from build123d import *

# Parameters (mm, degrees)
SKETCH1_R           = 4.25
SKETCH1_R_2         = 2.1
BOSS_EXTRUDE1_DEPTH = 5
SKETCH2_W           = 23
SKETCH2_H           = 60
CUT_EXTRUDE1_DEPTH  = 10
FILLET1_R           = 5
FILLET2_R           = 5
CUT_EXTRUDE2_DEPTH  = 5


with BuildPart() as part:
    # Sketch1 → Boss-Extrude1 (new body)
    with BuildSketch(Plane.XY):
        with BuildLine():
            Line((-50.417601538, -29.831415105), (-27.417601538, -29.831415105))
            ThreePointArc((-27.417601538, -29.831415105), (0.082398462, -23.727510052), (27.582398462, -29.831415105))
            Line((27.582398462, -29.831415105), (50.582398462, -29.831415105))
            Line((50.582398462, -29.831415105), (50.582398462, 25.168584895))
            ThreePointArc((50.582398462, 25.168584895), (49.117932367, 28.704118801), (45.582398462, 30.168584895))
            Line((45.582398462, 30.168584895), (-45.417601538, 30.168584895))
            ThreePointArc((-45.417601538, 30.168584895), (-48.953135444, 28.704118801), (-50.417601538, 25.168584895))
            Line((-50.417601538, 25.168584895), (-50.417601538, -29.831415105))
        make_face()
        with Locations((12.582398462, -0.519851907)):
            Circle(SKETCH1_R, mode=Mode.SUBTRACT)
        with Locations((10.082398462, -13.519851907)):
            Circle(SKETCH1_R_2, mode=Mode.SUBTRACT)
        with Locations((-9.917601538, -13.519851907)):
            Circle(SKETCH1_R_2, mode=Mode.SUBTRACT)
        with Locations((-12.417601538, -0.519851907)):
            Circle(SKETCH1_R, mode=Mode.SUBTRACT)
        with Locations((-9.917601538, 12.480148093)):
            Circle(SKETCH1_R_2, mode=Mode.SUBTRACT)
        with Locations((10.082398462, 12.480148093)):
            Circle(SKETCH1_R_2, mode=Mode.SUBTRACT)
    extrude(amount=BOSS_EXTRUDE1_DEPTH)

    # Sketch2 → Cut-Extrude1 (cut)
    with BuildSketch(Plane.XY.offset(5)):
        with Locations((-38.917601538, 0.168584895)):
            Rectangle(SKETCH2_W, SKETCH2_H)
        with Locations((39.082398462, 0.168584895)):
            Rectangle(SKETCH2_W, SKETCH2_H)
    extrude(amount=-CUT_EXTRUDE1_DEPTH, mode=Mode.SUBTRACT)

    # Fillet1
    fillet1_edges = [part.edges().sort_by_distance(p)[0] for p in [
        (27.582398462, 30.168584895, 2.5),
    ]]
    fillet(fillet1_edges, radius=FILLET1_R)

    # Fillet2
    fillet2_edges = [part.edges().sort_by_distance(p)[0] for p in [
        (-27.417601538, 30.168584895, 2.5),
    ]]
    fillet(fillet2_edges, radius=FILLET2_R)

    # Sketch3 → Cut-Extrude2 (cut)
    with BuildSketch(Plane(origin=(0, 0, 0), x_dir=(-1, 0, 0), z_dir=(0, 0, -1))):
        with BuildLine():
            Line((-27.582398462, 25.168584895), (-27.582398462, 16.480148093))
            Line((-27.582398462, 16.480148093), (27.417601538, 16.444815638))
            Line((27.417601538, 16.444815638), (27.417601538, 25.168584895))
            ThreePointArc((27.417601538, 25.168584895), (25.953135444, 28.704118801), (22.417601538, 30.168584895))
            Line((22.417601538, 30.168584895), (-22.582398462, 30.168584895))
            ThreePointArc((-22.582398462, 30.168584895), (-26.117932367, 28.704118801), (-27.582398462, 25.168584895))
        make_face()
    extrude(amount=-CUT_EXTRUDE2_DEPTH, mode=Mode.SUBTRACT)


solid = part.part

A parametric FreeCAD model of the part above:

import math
import FreeCAD as App
import Part
import Sketcher
Q = App.Units.Quantity


def edges_at(feature, points):
    """Names of the edges that pass closest to the given points."""
    edges = feature.Shape.Edges
    near = lambda p: min(range(len(edges)), key=lambda i: edges[i].distToShape(Part.Vertex(*p))[0])
    return sorted({f"Edge{near(p) + 1}" for p in points})


def add_polygon(sketch, points):
    """Adds a closed chain of lines whose ends are joined by coincident constraints."""
    first, n = sketch.GeometryCount, len(points)
    for a, b in zip(points, points[1:] + points[:1]):
        sketch.addGeometry(Part.LineSegment(App.Vector(*a, 0), App.Vector(*b, 0)), False)
    for i in range(n):
        sketch.addConstraint(Sketcher.Constraint("Coincident", first + i, 2, first + (i + 1) % n, 1))

doc = App.newDocument("Part")
body = doc.addObject("PartDesign::Body", "Body")

# Sketch on XY plane
sketch1 = body.newObject("Sketcher::SketchObject", "Sketch")
sketch1.AttachmentSupport = (doc.getObject("XY_Plane"), [""])
sketch1.MapMode = "FlatFace"
sketch1.addGeometry([
    Part.LineSegment(App.Vector(-50.417602, -29.831415, 0), App.Vector(-27.417602, -29.831415, 0)),  # 0
    Part.ArcOfCircle(Part.Circle(App.Vector(0.082398, -88.72751, 0), App.Vector(0, 0, 1), 65), math.radians(64.971001), math.radians(115.028999)),  # 1
    Part.LineSegment(App.Vector(27.582398, -29.831415, 0), App.Vector(50.582398, -29.831415, 0)),  # 2
    Part.LineSegment(App.Vector(50.582398, -29.831415, 0), App.Vector(50.582398, 25.168585, 0)),  # 3
    Part.ArcOfCircle(Part.Circle(App.Vector(45.582398, 25.168585, 0), App.Vector(0, 0, 1), 5), math.radians(0), math.radians(90)),  # 4
    Part.LineSegment(App.Vector(45.582398, 30.168585, 0), App.Vector(-45.417602, 30.168585, 0)),  # 5
    Part.ArcOfCircle(Part.Circle(App.Vector(-45.417602, 25.168585, 0), App.Vector(0, 0, 1), 5), math.radians(90), math.radians(180)),  # 6
    Part.LineSegment(App.Vector(-50.417602, 25.168585, 0), App.Vector(-50.417602, -29.831415, 0)),  # 7
    Part.Circle(App.Vector(-9.917602, -13.519852, 0), App.Vector(0, 0, 1), 2.1),  # 8
    Part.Circle(App.Vector(10.082398, -13.519852, 0), App.Vector(0, 0, 1), 2.1),  # 9
    Part.Circle(App.Vector(-12.417602, -0.519852, 0), App.Vector(0, 0, 1), 4.25),  # 10
    Part.Circle(App.Vector(-9.917602, 12.480148, 0), App.Vector(0, 0, 1), 2.1),  # 11
    Part.Circle(App.Vector(12.582398, -0.519852, 0), App.Vector(0, 0, 1), 4.25),  # 12
    Part.Circle(App.Vector(10.082398, 12.480148, 0), App.Vector(0, 0, 1), 2.1),  # 13
], False)
sketch1.addConstraint([
    Sketcher.Constraint("Coincident", 0, 2, 1, 2),
    Sketcher.Constraint("Coincident", 1, 1, 2, 1),
    Sketcher.Constraint("Coincident", 2, 2, 3, 1),
    Sketcher.Constraint("Tangent", 3, 2, 4, 1),
    Sketcher.Constraint("Tangent", 4, 2, 5, 1),
    Sketcher.Constraint("Tangent", 5, 2, 6, 1),
    Sketcher.Constraint("Tangent", 6, 2, 7, 1),
    Sketcher.Constraint("Coincident", 7, 2, 0, 1),
    Sketcher.Constraint("Horizontal", 0),
    Sketcher.Constraint("Horizontal", 2),
    Sketcher.Constraint("Vertical", 3),
    Sketcher.Constraint("Horizontal", 5),
    Sketcher.Constraint("Vertical", 7),
    Sketcher.Constraint("Equal", 4, 6),
    Sketcher.Constraint("Equal", 8, 9),
    Sketcher.Constraint("Equal", 9, 11),
    Sketcher.Constraint("Equal", 10, 12),
    Sketcher.Constraint("Equal", 11, 13),
    Sketcher.Constraint("Horizontal", 8, 3, 9, 3),
    Sketcher.Constraint("Horizontal", 10, 3, 12, 3),
    Sketcher.Constraint("Horizontal", 11, 3, 13, 3),
    Sketcher.Constraint("Horizontal", 0, 2, 1, 1),
    Sketcher.Constraint("Vertical", 8, 3, 11, 3),
    Sketcher.Constraint("Vertical", 9, 3, 13, 3),
    Sketcher.Constraint("Equal", 0, 2),
    Sketcher.Constraint("Radius", 1, Q("65 mm")),
    Sketcher.Constraint("Radius", 4, Q("5 mm")),
    Sketcher.Constraint("Diameter", 8, Q("4.2 mm")),
    Sketcher.Constraint("Diameter", 10, Q("8.5 mm")),
    Sketcher.Constraint("DistanceX", 0, 1, 0, 2, Q("23 mm")),
    Sketcher.Constraint("DistanceX", 5, 2, 5, 1, Q("91 mm")),
    Sketcher.Constraint("DistanceY", 3, 1, 3, 2, Q("55 mm")),
    Sketcher.Constraint("DistanceX", 8, 3, 1, 3, Q("10 mm")),
    Sketcher.Constraint("DistanceX", 8, 3, 9, 3, Q("20 mm")),
    Sketcher.Constraint("DistanceY", 8, 3, 10, 3, Q("13 mm")),
    Sketcher.Constraint("DistanceX", 6, 3, 10, 3, Q("33 mm")),
    Sketcher.Constraint("DistanceY", 10, 3, 11, 3, Q("13 mm")),
    Sketcher.Constraint("DistanceX", 10, 3, 12, 3, Q("25 mm")),
    Sketcher.Constraint("DistanceX", -1, 1, 1, 3, Q("0.082398 mm")),
    Sketcher.Constraint("DistanceY", 1, 3, -1, 1, Q("88.72751 mm")),
    Sketcher.Constraint("DistanceY", 8, 3, -1, 1, Q("13.519852 mm")),
])
pad1 = body.newObject("PartDesign::Pad", "Pad")
pad1.Profile = sketch1
pad1.Length = 5

# Sketch on XY plane
sketch2 = body.newObject("Sketcher::SketchObject", "Sketch001")
sketch2.AttachmentSupport = (doc.getObject("XY_Plane"), [""])
sketch2.MapMode = "FlatFace"
sketch2.AttachmentOffset = App.Placement(App.Vector(0, 0, 5), App.Rotation())
add_polygon(sketch2, [(-50.417602, 30.168585), (-50.417602, -29.831415), (-27.417602, -29.831415), (-27.417602, 30.168585)])  # lines 0-3
add_polygon(sketch2, [(27.582398, 30.168585), (27.582398, -29.831415), (50.582398, -29.831415), (50.582398, 30.168585)])  # lines 4-7
sketch2.addConstraint([
    Sketcher.Constraint("Vertical", 0),
    Sketcher.Constraint("Horizontal", 1),
    Sketcher.Constraint("Vertical", 2),
    Sketcher.Constraint("Horizontal", 3),
    Sketcher.Constraint("Vertical", 4),
    Sketcher.Constraint("Horizontal", 5),
    Sketcher.Constraint("Vertical", 6),
    Sketcher.Constraint("Horizontal", 7),
    Sketcher.Constraint("Horizontal", 1, 2, 4, 2),
    Sketcher.Constraint("Horizontal", 3, 2, 6, 2),
    Sketcher.Constraint("Equal", 3, 5),
    Sketcher.Constraint("DistanceX", 1, 1, 1, 2, Q("23 mm")),
    Sketcher.Constraint("DistanceY", 0, 2, 0, 1, Q("60 mm")),
    Sketcher.Constraint("DistanceX", 1, 2, 4, 2, Q("55 mm")),
    Sketcher.Constraint("DistanceX", 0, 2, -1, 1, Q("50.417602 mm")),
    Sketcher.Constraint("DistanceY", 0, 2, -1, 1, Q("29.831415 mm")),
])
pocket1 = body.newObject("PartDesign::Pocket", "Pocket")
pocket1.Profile = sketch2
pocket1.Length = 10
doc.recompute()

fillet = body.newObject("PartDesign::Fillet", "Fillet")
fillet.Base = (pocket1, edges_at(pocket1, [(27.582, 30.169, 2.5)]))
fillet.Radius = 5
doc.recompute()

fillet2 = body.newObject("PartDesign::Fillet", "Fillet001")
fillet2.Base = (fillet, edges_at(fillet, [(-27.418, 30.169, 2.5)]))
fillet2.Radius = 5

# Sketch on XY plane
sketch3 = body.newObject("Sketcher::SketchObject", "Sketch002")
sketch3.AttachmentSupport = (doc.getObject("XY_Plane"), [""])
sketch3.MapMode = "FlatFace"
sketch3.addGeometry([
    Part.LineSegment(App.Vector(27.582398, 25.168585, 0), App.Vector(27.582398, 16.480148, 0)),  # 0
    Part.LineSegment(App.Vector(27.582398, 16.480148, 0), App.Vector(-27.417602, 16.444816, 0)),  # 1
    Part.LineSegment(App.Vector(-27.417602, 16.444816, 0), App.Vector(-27.417602, 25.168585, 0)),  # 2
    Part.ArcOfCircle(Part.Circle(App.Vector(-22.417602, 25.168585, 0), App.Vector(0, 0, 1), 5), math.radians(90), math.radians(180)),  # 3
    Part.LineSegment(App.Vector(-22.417602, 30.168585, 0), App.Vector(22.582398, 30.168585, 0)),  # 4
    Part.ArcOfCircle(Part.Circle(App.Vector(22.582398, 25.168585, 0), App.Vector(0, 0, 1), 5), math.radians(0), math.radians(90)),  # 5
], False)
sketch3.addConstraint([
    Sketcher.Constraint("Coincident", 0, 2, 1, 1),
    Sketcher.Constraint("Coincident", 1, 2, 2, 1),
    Sketcher.Constraint("Tangent", 2, 2, 3, 2),
    Sketcher.Constraint("Tangent", 3, 1, 4, 1),
    Sketcher.Constraint("Tangent", 4, 2, 5, 2),
    Sketcher.Constraint("Tangent", 5, 1, 0, 1),
    Sketcher.Constraint("Vertical", 0),
    Sketcher.Constraint("Vertical", 2),
    Sketcher.Constraint("Horizontal", 4),
    Sketcher.Constraint("Equal", 3, 5),
    Sketcher.Constraint("Radius", 3, Q("5 mm")),
    Sketcher.Constraint("DistanceX", 4, 1, 4, 2, Q("45 mm")),
    Sketcher.Constraint("DistanceY", 2, 1, 2, 2, Q("8.723769 mm")),
    Sketcher.Constraint("DistanceX", 3, 3, -1, 1, Q("22.417602 mm")),
    Sketcher.Constraint("DistanceY", 0, 2, 0, 1, Q("8.688437 mm")),
    Sketcher.Constraint("DistanceY", -1, 1, 0, 2, Q("16.480148 mm")),
])
pocket2 = body.newObject("PartDesign::Pocket", "Pocket001")
pocket2.Profile = sketch3
pocket2.Length = 5
pocket2.Reversed = True

doc.recompute()
